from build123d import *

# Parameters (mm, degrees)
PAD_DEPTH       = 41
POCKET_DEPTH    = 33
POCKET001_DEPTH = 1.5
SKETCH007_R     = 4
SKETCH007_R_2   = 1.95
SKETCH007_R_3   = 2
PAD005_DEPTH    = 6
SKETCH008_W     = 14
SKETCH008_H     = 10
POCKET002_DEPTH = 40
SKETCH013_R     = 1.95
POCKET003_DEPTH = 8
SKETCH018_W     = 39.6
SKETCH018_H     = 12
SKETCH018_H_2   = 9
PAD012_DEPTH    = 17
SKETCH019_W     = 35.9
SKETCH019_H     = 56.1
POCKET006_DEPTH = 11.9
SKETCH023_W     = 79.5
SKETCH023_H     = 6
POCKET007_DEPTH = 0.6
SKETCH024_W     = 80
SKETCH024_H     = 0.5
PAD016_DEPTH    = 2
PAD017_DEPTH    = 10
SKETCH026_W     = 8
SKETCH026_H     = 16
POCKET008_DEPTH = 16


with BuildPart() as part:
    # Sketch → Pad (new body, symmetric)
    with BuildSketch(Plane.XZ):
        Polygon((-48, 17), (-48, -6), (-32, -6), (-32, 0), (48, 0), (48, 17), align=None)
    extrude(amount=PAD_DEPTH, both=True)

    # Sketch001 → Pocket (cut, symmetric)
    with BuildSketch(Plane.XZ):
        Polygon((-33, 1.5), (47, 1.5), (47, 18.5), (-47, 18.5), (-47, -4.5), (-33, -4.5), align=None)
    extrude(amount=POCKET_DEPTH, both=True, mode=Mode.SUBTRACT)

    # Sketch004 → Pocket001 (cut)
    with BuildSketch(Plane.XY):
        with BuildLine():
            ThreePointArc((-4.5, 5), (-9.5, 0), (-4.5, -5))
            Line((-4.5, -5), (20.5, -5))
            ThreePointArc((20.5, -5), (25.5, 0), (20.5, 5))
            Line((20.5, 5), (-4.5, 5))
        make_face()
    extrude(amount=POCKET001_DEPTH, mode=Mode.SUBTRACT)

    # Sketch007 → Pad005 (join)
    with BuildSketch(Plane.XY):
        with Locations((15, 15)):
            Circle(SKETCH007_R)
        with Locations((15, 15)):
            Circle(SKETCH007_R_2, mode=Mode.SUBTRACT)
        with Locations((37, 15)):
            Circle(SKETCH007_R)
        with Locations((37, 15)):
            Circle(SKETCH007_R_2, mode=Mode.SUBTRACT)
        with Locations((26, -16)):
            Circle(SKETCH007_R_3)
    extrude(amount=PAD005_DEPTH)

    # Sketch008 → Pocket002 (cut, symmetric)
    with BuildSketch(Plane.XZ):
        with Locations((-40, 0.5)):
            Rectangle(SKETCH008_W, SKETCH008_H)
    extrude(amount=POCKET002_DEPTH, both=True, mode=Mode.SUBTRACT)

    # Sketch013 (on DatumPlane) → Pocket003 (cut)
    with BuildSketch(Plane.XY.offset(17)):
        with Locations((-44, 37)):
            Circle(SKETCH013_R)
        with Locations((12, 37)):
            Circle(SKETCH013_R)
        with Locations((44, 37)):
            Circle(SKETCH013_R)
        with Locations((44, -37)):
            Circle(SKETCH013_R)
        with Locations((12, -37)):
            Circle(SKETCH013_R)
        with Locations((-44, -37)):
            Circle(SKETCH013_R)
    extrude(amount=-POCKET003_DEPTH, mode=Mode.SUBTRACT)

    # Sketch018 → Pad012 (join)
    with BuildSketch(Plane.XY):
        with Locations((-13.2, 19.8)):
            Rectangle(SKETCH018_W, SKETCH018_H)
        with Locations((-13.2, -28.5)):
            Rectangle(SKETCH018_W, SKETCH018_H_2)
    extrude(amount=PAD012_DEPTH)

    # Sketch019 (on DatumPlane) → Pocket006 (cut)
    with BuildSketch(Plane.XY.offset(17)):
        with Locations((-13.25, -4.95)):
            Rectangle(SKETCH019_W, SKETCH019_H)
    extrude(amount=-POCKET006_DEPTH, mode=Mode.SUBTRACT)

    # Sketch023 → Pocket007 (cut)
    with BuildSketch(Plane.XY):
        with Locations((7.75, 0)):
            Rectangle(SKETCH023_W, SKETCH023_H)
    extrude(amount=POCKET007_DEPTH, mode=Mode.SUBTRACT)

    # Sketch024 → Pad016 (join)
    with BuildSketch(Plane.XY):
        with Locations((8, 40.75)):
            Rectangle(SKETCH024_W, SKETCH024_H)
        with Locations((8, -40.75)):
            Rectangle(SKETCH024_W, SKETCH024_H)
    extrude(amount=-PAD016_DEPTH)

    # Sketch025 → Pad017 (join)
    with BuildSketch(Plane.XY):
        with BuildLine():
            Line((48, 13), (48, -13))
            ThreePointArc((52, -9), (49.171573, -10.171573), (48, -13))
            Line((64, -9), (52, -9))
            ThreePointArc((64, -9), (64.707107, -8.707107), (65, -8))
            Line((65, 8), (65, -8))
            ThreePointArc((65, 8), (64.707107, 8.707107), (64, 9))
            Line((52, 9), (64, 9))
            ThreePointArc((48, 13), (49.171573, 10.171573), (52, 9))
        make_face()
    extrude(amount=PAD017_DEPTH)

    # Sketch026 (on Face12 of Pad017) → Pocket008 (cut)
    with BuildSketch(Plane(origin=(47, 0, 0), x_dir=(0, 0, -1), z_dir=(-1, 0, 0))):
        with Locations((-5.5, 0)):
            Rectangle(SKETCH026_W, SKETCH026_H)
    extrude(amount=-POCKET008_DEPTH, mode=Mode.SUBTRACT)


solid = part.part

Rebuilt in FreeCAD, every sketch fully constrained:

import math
import FreeCAD as App
import Part
import Sketcher
Q = App.Units.Quantity

doc = App.newDocument("Part")
body = doc.addObject("PartDesign::Body", "Body")

# Sketch on XZ plane
sketch1 = body.newObject("Sketcher::SketchObject", "Sketch")
sketch1.AttachmentSupport = (doc.getObject("XZ_Plane"), [""])
sketch1.MapMode = "FlatFace"
sketch1.addGeometry(Part.LineSegment(App.Vector(-48, 17, 0), App.Vector(-48, -6, 0)), False)
sketch1.addGeometry(Part.LineSegment(App.Vector(-48, -6, 0), App.Vector(-32, -6, 0)), False)
sketch1.addGeometry(Part.LineSegment(App.Vector(-32, -6, 0), App.Vector(-32, 0, 0)), False)
sketch1.addGeometry(Part.LineSegment(App.Vector(-32, 0, 0), App.Vector(48, 0, 0)), False)
sketch1.addGeometry(Part.LineSegment(App.Vector(48, 0, 0), App.Vector(48, 17, 0)), False)
sketch1.addGeometry(Part.LineSegment(App.Vector(48, 17, 0), App.Vector(-48, 17, 0)), False)
sketch1.addConstraint(Sketcher.Constraint("Coincident", 0, 2, 1, 1))
sketch1.addConstraint(Sketcher.Constraint("Coincident", 1, 2, 2, 1))
sketch1.addConstraint(Sketcher.Constraint("Coincident", 2, 2, 3, 1))
sketch1.addConstraint(Sketcher.Constraint("Coincident", 3, 2, 4, 1))
sketch1.addConstraint(Sketcher.Constraint("Coincident", 4, 2, 5, 1))
sketch1.addConstraint(Sketcher.Constraint("Coincident", 5, 2, 0, 1))
sketch1.addConstraint(Sketcher.Constraint("Vertical", 0))
sketch1.addConstraint(Sketcher.Constraint("Horizontal", 1))
sketch1.addConstraint(Sketcher.Constraint("Vertical", 2))
sketch1.addConstraint(Sketcher.Constraint("Horizontal", 3))
sketch1.addConstraint(Sketcher.Constraint("Vertical", 4))
sketch1.addConstraint(Sketcher.Constraint("Horizontal", 5))
sketch1.addConstraint(Sketcher.Constraint("PointOnObject", 2, 2, -1))
sketch1.addConstraint(Sketcher.Constraint("DistanceX", 1, 1, 1, 2, Q("16 mm")))
sketch1.addConstraint(Sketcher.Constraint("DistanceX", 3, 1, 3, 2, Q("80 mm")))
sketch1.addConstraint(Sketcher.Constraint("DistanceY", 0, 2, 0, 1, Q("23 mm")))
sketch1.addConstraint(Sketcher.Constraint("DistanceY", 2, 1, 2, 2, Q("6 mm")))
sketch1.addConstraint(Sketcher.Constraint("DistanceX", 0, 2, -1, 1, Q("48 mm")))
pad1 = body.newObject("PartDesign::Pad", "Pad")
pad1.Profile = sketch1
pad1.Length = 82
pad1.Midplane = True

# Sketch on XZ plane
sketch2 = body.newObject("Sketcher::SketchObject", "Sketch001")
sketch2.AttachmentSupport = (doc.getObject("XZ_Plane"), [""])
sketch2.MapMode = "FlatFace"
sketch2.addGeometry(Part.LineSegment(App.Vector(-33, 2, 0), App.Vector(47, 2, 0)), False)
sketch2.addGeometry(Part.LineSegment(App.Vector(47, 2, 0), App.Vector(47, 18, 0)), False)
sketch2.addGeometry(Part.LineSegment(App.Vector(47, 18, 0), App.Vector(-47, 18, 0)), False)
sketch2.addGeometry(Part.LineSegment(App.Vector(-47, 18, 0), App.Vector(-47, -4, 0)), False)
sketch2.addGeometry(Part.LineSegment(App.Vector(-47, -4, 0), App.Vector(-33, -4, 0)), False)
sketch2.addGeometry(Part.LineSegment(App.Vector(-33, -4, 0), App.Vector(-33, 2, 0)), False)
sketch2.addConstraint(Sketcher.Constraint("Coincident", 0, 2, 1, 1))
sketch2.addConstraint(Sketcher.Constraint("Coincident", 1, 2, 2, 1))
sketch2.addConstraint(Sketcher.Constraint("Coincident", 2, 2, 3, 1))
sketch2.addConstraint(Sketcher.Constraint("Coincident", 3, 2, 4, 1))
sketch2.addConstraint(Sketcher.Constraint("Coincident", 4, 2, 5, 1))
sketch2.addConstraint(Sketcher.Constraint("Coincident", 5, 2, 0, 1))
sketch2.addConstraint(Sketcher.Constraint("Horizontal", 0))
sketch2.addConstraint(Sketcher.Constraint("Vertical", 1))
sketch2.addConstraint(Sketcher.Constraint("Horizontal", 2))
sketch2.addConstraint(Sketcher.Constraint("Vertical", 3))
sketch2.addConstraint(Sketcher.Constraint("Horizontal", 4))
sketch2.addConstraint(Sketcher.Constraint("Vertical", 5))
sketch2.addConstraint(Sketcher.Constraint("DistanceX", 0, 1, 0, 2, Q("80 mm")))
sketch2.addConstraint(Sketcher.Constraint("DistanceX", 2, 2, 2, 1, Q("94 mm")))
sketch2.addConstraint(Sketcher.Constraint("DistanceY", 1, 1, 1, 2, Q("17 mm")))
sketch2.addConstraint(Sketcher.Constraint("DistanceY", 3, 2, 3, 1, Q("23 mm")))
sketch2.addConstraint(Sketcher.Constraint("DistanceX", -1, 1, 0, 2, Q("47 mm")))
sketch2.addConstraint(Sketcher.Constraint("DistanceY", -1, 1, 0, 2, Q("1.5 mm")))
pocket1 = body.newObject("PartDesign::Pocket", "Pocket")
pocket1.Profile = sketch2
pocket1.Length = 66
pocket1.Midplane = True

# Sketch on XY plane
sketch3 = body.newObject("Sketcher::SketchObject", "Sketch002")
sketch3.AttachmentSupport = (doc.getObject("XY_Plane"), [""])
sketch3.MapMode = "FlatFace"
sketch3.addGeometry(Part.ArcOfCircle(Part.Circle(App.Vector(-4, 0, 0), App.Vector(0, 0, 1), 5), math.radians(90), math.radians(270)), False)
sketch3.addGeometry(Part.LineSegment(App.Vector(-4, -5, 0), App.Vector(20, -5, 0)), False)
sketch3.addGeometry(Part.ArcOfCircle(Part.Circle(App.Vector(20, 0, 0), App.Vector(0, 0, 1), 5), math.radians(-90), math.radians(90)), False)
sketch3.addGeometry(Part.LineSegment(App.Vector(20, 5, 0), App.Vector(-4, 5, 0)), False)
sketch3.addConstraint(Sketcher.Constraint("Tangent", 0, 2, 1, 1))
sketch3.addConstraint(Sketcher.Constraint("Tangent", 1, 2, 2, 1))
sketch3.addConstraint(Sketcher.Constraint("Tangent", 2, 2, 3, 1))
sketch3.addConstraint(Sketcher.Constraint("Tangent", 3, 2, 0, 1))
sketch3.addConstraint(Sketcher.Constraint("Horizontal", 1))
sketch3.addConstraint(Sketcher.Constraint("Horizontal", 3))
sketch3.addConstraint(Sketcher.Constraint("PointOnObject", 0, 3, -1))
sketch3.addConstraint(Sketcher.Constraint("Radius", 0, Q("5 mm")))
sketch3.addConstraint(Sketcher.Constraint("DistanceX", 1, 1, 1, 2, Q("25 mm")))
sketch3.addConstraint(Sketcher.Constraint("DistanceX", 0, 3, -1, 1, Q("4.5 mm")))
pocket2 = body.newObject("PartDesign::Pocket", "Pocket001")
pocket2.Profile = sketch3
pocket2.Length = 1.5
pocket2.Reversed = True

# Sketch on XY plane
sketch4 = body.newObject("Sketcher::SketchObject", "Sketch003")
sketch4.AttachmentSupport = (doc.getObject("XY_Plane"), [""])
sketch4.MapMode = "FlatFace"
sketch4.addGeometry(Part.Circle(App.Vector(15, 15, 0), App.Vector(0, 0, 1), 4), False)
sketch4.addGeometry(Part.Circle(App.Vector(15, 15, 0), App.Vector(0, 0, 1), 1.9), False)
sketch4.addGeometry(Part.Circle(App.Vector(37, 15, 0), App.Vector(0, 0, 1), 4), False)
sketch4.addGeometry(Part.Circle(App.Vector(37, 15, 0), App.Vector(0, 0, 1), 1.9), False)
sketch4.addGeometry(Part.Circle(App.Vector(26, -16, 0), App.Vector(0, 0, 1), 2), False)
sketch4.addConstraint(Sketcher.Constraint("Coincident", 1, 3, 0, 3))
sketch4.addConstraint(Sketcher.Constraint("Coincident", 3, 3, 2, 3))
sketch4.addConstraint(Sketcher.Constraint("Equal", 0, 2))
sketch4.addConstraint(Sketcher.Constraint("Equal", 1, 3))
sketch4.addConstraint(Sketcher.Constraint("Horizontal", 1, 3, 2, 3))
sketch4.addConstraint(Sketcher.Constraint("Diameter", 0, Q("8 mm")))
sketch4.addConstraint(Sketcher.Constraint("Diameter", 4, Q("4 mm")))
sketch4.addConstraint(Sketcher.Constraint("Diameter", 1, Q("3.9 mm")))
sketch4.addConstraint(Sketcher.Constraint("DistanceX", -1, 1, 0, 3, Q("15 mm")))
sketch4.addConstraint(Sketcher.Constraint("DistanceY", -1, 1, 0, 3, Q("15 mm")))
sketch4.addConstraint(Sketcher.Constraint("DistanceX", -1, 1, 2, 3, Q("37 mm")))
sketch4.addConstraint(Sketcher.Constraint("DistanceX", -1, 1, 4, 3, Q("26 mm")))
sketch4.addConstraint(Sketcher.Constraint("DistanceY", 4, 3, -1, 1, Q("16 mm")))
pad2 = body.newObject("PartDesign::Pad", "Pad001")
pad2.Profile = sketch4
pad2.Length = 6

# Sketch on XZ plane
sketch5 = body.newObject("Sketcher::SketchObject", "Sketch004")
sketch5.AttachmentSupport = (doc.getObject("XZ_Plane"), [""])
sketch5.MapMode = "FlatFace"
sketch5.addGeometry(Part.LineSegment(App.Vector(-47, 6, 0), App.Vector(-47, -4, 0)), False)
sketch5.addGeometry(Part.LineSegment(App.Vector(-47, -4, 0), App.Vector(-33, -4, 0)), False)
sketch5.addGeometry(Part.LineSegment(App.Vector(-33, -4, 0), App.Vector(-33, 6, 0)), False)
sketch5.addGeometry(Part.LineSegment(App.Vector(-33, 6, 0), App.Vector(-47, 6, 0)), False)
sketch5.addConstraint(Sketcher.Constraint("Coincident", 0, 2, 1, 1))
sketch5.addConstraint(Sketcher.Constraint("Coincident", 1, 2, 2, 1))
sketch5.addConstraint(Sketcher.Constraint("Coincident", 2, 2, 3, 1))
sketch5.addConstraint(Sketcher.Constraint("Coincident", 3, 2, 0, 1))
sketch5.addConstraint(Sketcher.Constraint("Vertical", 0))
sketch5.addConstraint(Sketcher.Constraint("Horizontal", 1))
sketch5.addConstraint(Sketcher.Constraint("Vertical", 2))
sketch5.addConstraint(Sketcher.Constraint("Horizontal", 3))
sketch5.addConstraint(Sketcher.Constraint("DistanceX", 1, 1, 1, 2, Q("14 mm")))
sketch5.addConstraint(Sketcher.Constraint("DistanceY", 0, 2, 0, 1, Q("10 mm")))
sketch5.addConstraint(Sketcher.Constraint("DistanceX", 0, 2, -1, 1, Q("47 mm")))
sketch5.addConstraint(Sketcher.Constraint("DistanceY", 0, 2, -1, 1, Q("4.5 mm")))
pocket3 = body.newObject("PartDesign::Pocket", "Pocket002")
pocket3.Profile = sketch5
pocket3.Length = 80
pocket3.Midplane = True

# Sketch on XY plane
sketch6 = body.newObject("Sketcher::SketchObject", "Sketch005")
sketch6.AttachmentSupport = (doc.getObject("XY_Plane"), [""])
sketch6.MapMode = "FlatFace"
sketch6.AttachmentOffset = App.Placement(App.Vector(0, 0, 17), App.Rotation())
sketch6.addGeometry(Part.Circle(App.Vector(-44, 37, 0), App.Vector(0, 0, 1), 1.9), False)
sketch6.addGeometry(Part.Circle(App.Vector(12, 37, 0), App.Vector(0, 0, 1), 1.9), False)
sketch6.addGeometry(Part.Circle(App.Vector(44, 37, 0), App.Vector(0, 0, 1), 1.9), False)
sketch6.addGeometry(Part.Circle(App.Vector(44, -37, 0), App.Vector(0, 0, 1), 1.9), False)
sketch6.addGeometry(Part.Circle(App.Vector(12, -37, 0), App.Vector(0, 0, 1), 1.9), False)
sketch6.addGeometry(Part.Circle(App.Vector(-44, -37, 0), App.Vector(0, 0, 1), 1.9), False)
sketch6.addConstraint(Sketcher.Constraint("Equal", 0, 1))
sketch6.addConstraint(Sketcher.Constraint("Equal", 1, 2))
sketch6.addConstraint(Sketcher.Constraint("Equal", 2, 3))
sketch6.addConstraint(Sketcher.Constraint("Equal", 3, 4))
sketch6.addConstraint(Sketcher.Constraint("Equal", 4, 5))
sketch6.addConstraint(Sketcher.Constraint("Symmetric", 0, 3, 3, 3, -1, 1))
sketch6.addConstraint(Sketcher.Constraint("Symmetric", 2, 3, 5, 3, -1, 1))
sketch6.addConstraint(Sketcher.Constraint("Symmetric", 0, 3, 2, 3, -2))
sketch6.addConstraint(Sketcher.Constraint("Symmetric", 1, 3, 4, 3, -1))
sketch6.addConstraint(Sketcher.Constraint("Horizontal", 0, 3, 1, 3))
sketch6.addConstraint(Sketcher.Constraint("Diameter", 0, Q("3.9 mm")))
sketch6.addConstraint(Sketcher.Constraint("DistanceX", 0, 3, -1, 1, Q("44 mm")))
sketch6.addConstraint(Sketcher.Constraint("DistanceY", -1, 1, 0, 3, Q("37 mm")))
sketch6.addConstraint(Sketcher.Constraint("DistanceX", -1, 1, 1, 3, Q("12 mm")))
pocket4 = body.newObject("PartDesign::Pocket", "Pocket003")
pocket4.Profile = sketch6
pocket4.Length = 8

# Sketch on XY plane
sketch7 = body.newObject("Sketcher::SketchObject", "Sketch006")
sketch7.AttachmentSupport = (doc.getObject("XY_Plane"), [""])
sketch7.MapMode = "FlatFace"
sketch7.addGeometry(Part.LineSegment(App.Vector(-33, 26, 0), App.Vector(-33, 14, 0)), False)
sketch7.addGeometry(Part.LineSegment(App.Vector(-33, 14, 0), App.Vector(7, 14, 0)), False)
sketch7.addGeometry(Part.LineSegment(App.Vector(7, 14, 0), App.Vector(7, 26, 0)), False)
sketch7.addGeometry(Part.LineSegment(App.Vector(7, 26, 0), App.Vector(-33, 26, 0)), False)
sketch7.addGeometry(Part.LineSegment(App.Vector(-33, -24, 0), App.Vector(-33, -33, 0)), False)
sketch7.addGeometry(Part.LineSegment(App.Vector(-33, -33, 0), App.Vector(7, -33, 0)), False)
sketch7.addGeometry(Part.LineSegment(App.Vector(7, -33, 0), App.Vector(7, -24, 0)), False)
sketch7.addGeometry(Part.LineSegment(App.Vector(7, -24, 0), App.Vector(-33, -24, 0)), False)
sketch7.addConstraint(Sketcher.Constraint("Coincident", 0, 2, 1, 1))
sketch7.addConstraint(Sketcher.Constraint("Coincident", 1, 2, 2, 1))
sketch7.addConstraint(Sketcher.Constraint("Coincident", 2, 2, 3, 1))
sketch7.addConstraint(Sketcher.Constraint("Coincident", 3, 2, 0, 1))
sketch7.addConstraint(Sketcher.Constraint("Coincident", 4, 2, 5, 1))
sketch7.addConstraint(Sketcher.Constraint("Coincident", 5, 2, 6, 1))
sketch7.addConstraint(Sketcher.Constraint("Coincident", 6, 2, 7, 1))
sketch7.addConstraint(Sketcher.Constraint("Coincident", 7, 2, 4, 1))
sketch7.addConstraint(Sketcher.Constraint("Vertical", 0))
sketch7.addConstraint(Sketcher.Constraint("Horizontal", 1))
sketch7.addConstraint(Sketcher.Constraint("Vertical", 2))
sketch7.addConstraint(Sketcher.Constraint("Horizontal", 3))
sketch7.addConstraint(Sketcher.Constraint("Vertical", 4))
sketch7.addConstraint(Sketcher.Constraint("Horizontal", 5))
sketch7.addConstraint(Sketcher.Constraint("Vertical", 6))
sketch7.addConstraint(Sketcher.Constraint("Horizontal", 7))
sketch7.addConstraint(Sketcher.Constraint("Vertical", 3, 2, 4, 2))
sketch7.addConstraint(Sketcher.Constraint("Vertical", 2, 2, 5, 2))
sketch7.addConstraint(Sketcher.Constraint("DistanceY", 0, 2, 0, 1, Q("12 mm")))
sketch7.addConstraint(Sketcher.Constraint("DistanceY", 4, 2, 4, 1, Q("9 mm")))
sketch7.addConstraint(Sketcher.Constraint("DistanceX", 1, 1, 1, 2, Q("39.6 mm")))
sketch7.addConstraint(Sketcher.Constraint("DistanceX", 0, 2, -1, 1, Q("33 mm")))
sketch7.addConstraint(Sketcher.Constraint("DistanceY", 4, 2, -1, 1, Q("33 mm")))
sketch7.addConstraint(Sketcher.Constraint("DistanceY", -1, 1, 0, 2, Q("13.8 mm")))
pad3 = body.newObject("PartDesign::Pad", "Pad002")
pad3.Profile = sketch7
pad3.Length = 17

# Sketch on XY plane
sketch8 = body.newObject("Sketcher::SketchObject", "Sketch007")
sketch8.AttachmentSupport = (doc.getObject("XY_Plane"), [""])
sketch8.MapMode = "FlatFace"
sketch8.AttachmentOffset = App.Placement(App.Vector(0, 0, 17), App.Rotation())
sketch8.addGeometry(Part.LineSegment(App.Vector(-31, 23, 0), App.Vector(-31, -33, 0)), False)
sketch8.addGeometry(Part.LineSegment(App.Vector(-31, -33, 0), App.Vector(5, -33, 0)), False)
sketch8.addGeometry(Part.LineSegment(App.Vector(5, -33, 0), App.Vector(5, 23, 0)), False)
sketch8.addGeometry(Part.LineSegment(App.Vector(5, 23, 0), App.Vector(-31, 23, 0)), False)
sketch8.addConstraint(Sketcher.Constraint("Coincident", 0, 2, 1, 1))
sketch8.addConstraint(Sketcher.Constraint("Coincident", 1, 2, 2, 1))
sketch8.addConstraint(Sketcher.Constraint("Coincident", 2, 2, 3, 1))
sketch8.addConstraint(Sketcher.Constraint("Coincident", 3, 2, 0, 1))
sketch8.addConstraint(Sketcher.Constraint("Vertical", 0))
sketch8.addConstraint(Sketcher.Constraint("Horizontal", 1))
sketch8.addConstraint(Sketcher.Constraint("Vertical", 2))
sketch8.addConstraint(Sketcher.Constraint("Horizontal", 3))
sketch8.addConstraint(Sketcher.Constraint("DistanceX", 1, 1, 1, 2, Q("35.9 mm")))
sketch8.addConstraint(Sketcher.Constraint("DistanceY", 0, 2, 0, 1, Q("56.1 mm")))
sketch8.addConstraint(Sketcher.Constraint("DistanceY", 0, 2, -1, 1, Q("33 mm")))
sketch8.addConstraint(Sketcher.Constraint("DistanceX", 0, 2, -1, 1, Q("31.2 mm")))
pocket5 = body.newObject("PartDesign::Pocket", "Pocket004")
pocket5.Profile = sketch8
pocket5.Length = 11.9

# Sketch on XY plane
sketch9 = body.newObject("Sketcher::SketchObject", "Sketch008")
sketch9.AttachmentSupport = (doc.getObject("XY_Plane"), [""])
sketch9.MapMode = "FlatFace"
sketch9.addGeometry(Part.LineSegment(App.Vector(-32, 3, 0), App.Vector(-32, -3, 0)), False)
sketch9.addGeometry(Part.LineSegment(App.Vector(-32, -3, 0), App.Vector(48, -3, 0)), False)
sketch9.addGeometry(Part.LineSegment(App.Vector(48, -3, 0), App.Vector(48, 3, 0)), False)
sketch9.addGeometry(Part.LineSegment(App.Vector(48, 3, 0), App.Vector(-32, 3, 0)), False)
sketch9.addConstraint(Sketcher.Constraint("Coincident", 0, 2, 1, 1))
sketch9.addConstraint(Sketcher.Constraint("Coincident", 1, 2, 2, 1))
sketch9.addConstraint(Sketcher.Constraint("Coincident", 2, 2, 3, 1))
sketch9.addConstraint(Sketcher.Constraint("Coincident", 3, 2, 0, 1))
sketch9.addConstraint(Sketcher.Constraint("Vertical", 0))
sketch9.addConstraint(Sketcher.Constraint("Horizontal", 1))
sketch9.addConstraint(Sketcher.Constraint("Vertical", 2))
sketch9.addConstraint(Sketcher.Constraint("Horizontal", 3))
sketch9.addConstraint(Sketcher.Constraint("DistanceY", 0, 2, 0, 1, Q("6 mm")))
sketch9.addConstraint(Sketcher.Constraint("DistanceX", 1, 1, 1, 2, Q("79.5 mm")))
sketch9.addConstraint(Sketcher.Constraint("DistanceX", 0, 2, -1, 1, Q("32 mm")))
sketch9.addConstraint(Sketcher.Constraint("DistanceY", 0, 2, -1, 1, Q("3 mm")))
pocket6 = body.newObject("PartDesign::Pocket", "Pocket005")
pocket6.Profile = sketch9
pocket6.Length = 0.6
pocket6.Reversed = True

# Sketch on XY plane
sketch10 = body.newObject("Sketcher::SketchObject", "Sketch009")
sketch10.AttachmentSupport = (doc.getObject("XY_Plane"), [""])
sketch10.MapMode = "FlatFace"
sketch10.addGeometry(Part.LineSegment(App.Vector(-32, 41, 0), App.Vector(-32, 40.5, 0)), False)
sketch10.addGeometry(Part.LineSegment(App.Vector(-32, 40.5, 0), App.Vector(48, 40.5, 0)), False)
sketch10.addGeometry(Part.LineSegment(App.Vector(48, 40.5, 0), App.Vector(48, 41, 0)), False)
sketch10.addGeometry(Part.LineSegment(App.Vector(48, 41, 0), App.Vector(-32, 41, 0)), False)
sketch10.addGeometry(Part.LineSegment(App.Vector(-32, -40.5, 0), App.Vector(-32, -41, 0)), False)
sketch10.addGeometry(Part.LineSegment(App.Vector(-32, -41, 0), App.Vector(48, -41, 0)), False)
sketch10.addGeometry(Part.LineSegment(App.Vector(48, -41, 0), App.Vector(48, -40.5, 0)), False)
sketch10.addGeometry(Part.LineSegment(App.Vector(48, -40.5, 0), App.Vector(-32, -40.5, 0)), False)
sketch10.addConstraint(Sketcher.Constraint("Coincident", 0, 2, 1, 1))
sketch10.addConstraint(Sketcher.Constraint("Coincident", 1, 2, 2, 1))
sketch10.addConstraint(Sketcher.Constraint("Coincident", 2, 2, 3, 1))
sketch10.addConstraint(Sketcher.Constraint("Coincident", 3, 2, 0, 1))
sketch10.addConstraint(Sketcher.Constraint("Coincident", 4, 2, 5, 1))
sketch10.addConstraint(Sketcher.Constraint("Coincident", 5, 2, 6, 1))
sketch10.addConstraint(Sketcher.Constraint("Coincident", 6, 2, 7, 1))
sketch10.addConstraint(Sketcher.Constraint("Coincident", 7, 2, 4, 1))
sketch10.addConstraint(Sketcher.Constraint("Vertical", 0))
sketch10.addConstraint(Sketcher.Constraint("Horizontal", 1))
sketch10.addConstraint(Sketcher.Constraint("Vertical", 2))
sketch10.addConstraint(Sketcher.Constraint("Horizontal", 3))
sketch10.addConstraint(Sketcher.Constraint("Vertical", 4))
sketch10.addConstraint(Sketcher.Constraint("Horizontal", 5))
sketch10.addConstraint(Sketcher.Constraint("Vertical", 6))
sketch10.addConstraint(Sketcher.Constraint("Horizontal", 7))
sketch10.addConstraint(Sketcher.Constraint("Symmetric", 3, 2, 4, 2, -1))
sketch10.addConstraint(Sketcher.Constraint("Symmetric", 1, 2, 6, 2, -1))
sketch10.addConstraint(Sketcher.Constraint("DistanceX", 1, 1, 1, 2, Q("80 mm")))
sketch10.addConstraint(Sketcher.Constraint("DistanceY", 0, 2, 0, 1, Q("0.5 mm")))
sketch10.addConstraint(Sketcher.Constraint("DistanceX", 0, 2, -1, 1, Q("32 mm")))
sketch10.addConstraint(Sketcher.Constraint("DistanceY", -1, 1, 2, 2, Q("41 mm")))
pad4 = body.newObject("PartDesign::Pad", "Pad003")
pad4.Profile = sketch10
pad4.Length = 2
pad4.Reversed = True

# Sketch on XY plane
sketch11 = body.newObject("Sketcher::SketchObject", "Sketch010")
sketch11.AttachmentSupport = (doc.getObject("XY_Plane"), [""])
sketch11.MapMode = "FlatFace"
sketch11.addGeometry(Part.LineSegment(App.Vector(48, 13, 0), App.Vector(48, -13, 0)), False)
sketch11.addGeometry(Part.ArcOfCircle(Part.Circle(App.Vector(52, -13, 0), App.Vector(0, 0, 1), 4), math.radians(90), math.radians(180)), False)
sketch11.addGeometry(Part.LineSegment(App.Vector(52, -9, 0), App.Vector(64, -9, 0)), False)
sketch11.addGeometry(Part.ArcOfCircle(Part.Circle(App.Vector(64, -8, 0), App.Vector(0, 0, 1), 1), math.radians(-90), math.radians(0)), False)
sketch11.addGeometry(Part.LineSegment(App.Vector(65, -8, 0), App.Vector(65, 8, 0)), False)
sketch11.addGeometry(Part.ArcOfCircle(Part.Circle(App.Vector(64, 8, 0), App.Vector(0, 0, 1), 1), math.radians(0), math.radians(90)), False)
sketch11.addGeometry(Part.LineSegment(App.Vector(64, 9, 0), App.Vector(52, 9, 0)), False)
sketch11.addGeometry(Part.ArcOfCircle(Part.Circle(App.Vector(52, 13, 0), App.Vector(0, 0, 1), 4), math.radians(-180), math.radians(-90)), False)
sketch11.addConstraint(Sketcher.Constraint("Tangent", 0, 2, 1, 2))
sketch11.addConstraint(Sketcher.Constraint("Tangent", 1, 1, 2, 1))
sketch11.addConstraint(Sketcher.Constraint("Tangent", 2, 2, 3, 1))
sketch11.addConstraint(Sketcher.Constraint("Tangent", 3, 2, 4, 1))
sketch11.addConstraint(Sketcher.Constraint("Tangent", 4, 2, 5, 1))
sketch11.addConstraint(Sketcher.Constraint("Tangent", 5, 2, 6, 1))
sketch11.addConstraint(Sketcher.Constraint("Tangent", 6, 2, 7, 2))
sketch11.addConstraint(Sketcher.Constraint("Tangent", 7, 1, 0, 1))
sketch11.addConstraint(Sketcher.Constraint("Vertical", 0))
sketch11.addConstraint(Sketcher.Constraint("Horizontal", 2))
sketch11.addConstraint(Sketcher.Constraint("Vertical", 4))
sketch11.addConstraint(Sketcher.Constraint("Horizontal", 6))
sketch11.addConstraint(Sketcher.Constraint("Equal", 3, 5))
sketch11.addConstraint(Sketcher.Constraint("Equal", 1, 7))
sketch11.addConstraint(Sketcher.Constraint("Radius", 1, Q("4 mm")))
sketch11.addConstraint(Sketcher.Constraint("Radius", 3, Q("0.999999 mm")))
sketch11.addConstraint(Sketcher.Constraint("DistanceX", 2, 1, 2, 2, Q("12 mm")))
sketch11.addConstraint(Sketcher.Constraint("DistanceY", 0, 2, 0, 1, Q("26 mm")))
sketch11.addConstraint(Sketcher.Constraint("DistanceX", -1, 1, 1, 3, Q("52 mm")))
sketch11.addConstraint(Sketcher.Constraint("DistanceY", 1, 3, -1, 1, Q("13 mm")))
pad5 = body.newObject("PartDesign::Pad", "Pad004")
pad5.Profile = sketch11
pad5.Length = 10

# Sketch on YZ plane
sketch12 = body.newObject("Sketcher::SketchObject", "Sketch011")
sketch12.AttachmentSupport = (doc.getObject("YZ_Plane"), [""])
sketch12.MapMode = "FlatFace"
sketch12.AttachmentOffset = App.Placement(App.Vector(0, 0, 47), App.Rotation())
sketch12.addGeometry(Part.LineSegment(App.Vector(-8, 10, 0), App.Vector(8, 10, 0)), False)
sketch12.addGeometry(Part.LineSegment(App.Vector(8, 10, 0), App.Vector(8, 2, 0)), False)
sketch12.addGeometry(Part.LineSegment(App.Vector(8, 2, 0), App.Vector(-8, 2, 0)), False)
sketch12.addGeometry(Part.LineSegment(App.Vector(-8, 2, 0), App.Vector(-8, 10, 0)), False)
sketch12.addConstraint(Sketcher.Constraint("Coincident", 0, 2, 1, 1))
sketch12.addConstraint(Sketcher.Constraint("Coincident", 1, 2, 2, 1))
sketch12.addConstraint(Sketcher.Constraint("Coincident", 2, 2, 3, 1))
sketch12.addConstraint(Sketcher.Constraint("Coincident", 3, 2, 0, 1))
sketch12.addConstraint(Sketcher.Constraint("Horizontal", 0))
sketch12.addConstraint(Sketcher.Constraint("Vertical", 1))
sketch12.addConstraint(Sketcher.Constraint("Horizontal", 2))
sketch12.addConstraint(Sketcher.Constraint("Vertical", 3))
sketch12.addConstraint(Sketcher.Constraint("DistanceX", 0, 1, 0, 2, Q("16 mm")))
sketch12.addConstraint(Sketcher.Constraint("DistanceY", 1, 2, 1, 1, Q("8 mm")))
sketch12.addConstraint(Sketcher.Constraint("DistanceX", -1, 1, 0, 2, Q("8 mm")))
sketch12.addConstraint(Sketcher.Constraint("DistanceY", -1, 1, 0, 2, Q("9.5 mm")))
pocket7 = body.newObject("PartDesign::Pocket", "Pocket006")
pocket7.Profile = sketch12
pocket7.Length = 16
pocket7.Reversed = True

doc.recompute()
